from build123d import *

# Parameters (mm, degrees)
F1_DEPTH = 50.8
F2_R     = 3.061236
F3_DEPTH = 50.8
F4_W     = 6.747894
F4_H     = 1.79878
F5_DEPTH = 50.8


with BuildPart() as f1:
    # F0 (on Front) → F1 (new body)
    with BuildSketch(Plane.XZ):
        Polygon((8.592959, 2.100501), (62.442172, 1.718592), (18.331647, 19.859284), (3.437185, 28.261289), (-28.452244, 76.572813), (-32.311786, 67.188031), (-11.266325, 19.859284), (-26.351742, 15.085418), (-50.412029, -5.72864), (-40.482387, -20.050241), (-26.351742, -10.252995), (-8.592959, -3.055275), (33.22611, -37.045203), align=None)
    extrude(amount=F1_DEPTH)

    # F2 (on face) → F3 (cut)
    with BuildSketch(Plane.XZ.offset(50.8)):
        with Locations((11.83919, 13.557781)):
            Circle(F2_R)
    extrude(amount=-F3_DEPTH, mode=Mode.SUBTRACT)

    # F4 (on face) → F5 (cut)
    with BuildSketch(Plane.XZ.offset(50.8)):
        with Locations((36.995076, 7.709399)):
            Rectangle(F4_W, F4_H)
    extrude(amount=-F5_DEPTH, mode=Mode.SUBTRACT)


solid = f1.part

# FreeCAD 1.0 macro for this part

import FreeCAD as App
import Part
import Sketcher
from FreeCAD import Vector
Q = App.Units.Quantity

doc = App.newDocument("Part")
body = doc.addObject("PartDesign::Body", "Body")

# Sketch on XZ plane
sketch1 = doc.addObject("Sketcher::SketchObject", "Sketch")
body.addObject(sketch1)
sketch1.AttachmentSupport = (doc.XZ_Plane, [""])
sketch1.MapMode = "FlatFace"
sketch1.addGeometry(Part.LineSegment(Vector(9, 2, 0), Vector(62, 2, 0)), False)
sketch1.addGeometry(Part.LineSegment(Vector(62, 2, 0), Vector(18, 20, 0)), False)
sketch1.addGeometry(Part.LineSegment(Vector(18, 20, 0), Vector(3, 28, 0)), False)
sketch1.addGeometry(Part.LineSegment(Vector(3, 28, 0), Vector(-28, 77, 0)), False)
sketch1.addGeometry(Part.LineSegment(Vector(-28, 77, 0), Vector(-32, 67, 0)), False)
sketch1.addGeometry(Part.LineSegment(Vector(-32, 67, 0), Vector(-11, 20, 0)), False)
sketch1.addGeometry(Part.LineSegment(Vector(-11, 20, 0), Vector(-26, 15, 0)), False)
sketch1.addGeometry(Part.LineSegment(Vector(-26, 15, 0), Vector(-50, -6, 0)), False)
sketch1.addGeometry(Part.LineSegment(Vector(-50, -6, 0), Vector(-40, -20, 0)), False)
sketch1.addGeometry(Part.LineSegment(Vector(-40, -20, 0), Vector(-26, -10, 0)), False)
sketch1.addGeometry(Part.LineSegment(Vector(-26, -10, 0), Vector(-9, -3, 0)), False)
sketch1.addGeometry(Part.LineSegment(Vector(-9, -3, 0), Vector(33, -37, 0)), False)
sketch1.addGeometry(Part.LineSegment(Vector(33, -37, 0), Vector(9, 2, 0)), False)
sketch1.addConstraint(Sketcher.Constraint("Coincident", 0, 2, 1, 1))
sketch1.addConstraint(Sketcher.Constraint("Coincident", 1, 2, 2, 1))
sketch1.addConstraint(Sketcher.Constraint("Coincident", 2, 2, 3, 1))
sketch1.addConstraint(Sketcher.Constraint("Coincident", 3, 2, 4, 1))
sketch1.addConstraint(Sketcher.Constraint("Coincident", 4, 2, 5, 1))
sketch1.addConstraint(Sketcher.Constraint("Coincident", 5, 2, 6, 1))
sketch1.addConstraint(Sketcher.Constraint("Coincident", 6, 2, 7, 1))
sketch1.addConstraint(Sketcher.Constraint("Coincident", 7, 2, 8, 1))
sketch1.addConstraint(Sketcher.Constraint("Coincident", 8, 2, 9, 1))
sketch1.addConstraint(Sketcher.Constraint("Coincident", 9, 2, 10, 1))
sketch1.addConstraint(Sketcher.Constraint("Coincident", 10, 2, 11, 1))
sketch1.addConstraint(Sketcher.Constraint("Coincident", 11, 2, 12, 1))
sketch1.addConstraint(Sketcher.Constraint("Coincident", 12, 2, 0, 1))
sketch1.addConstraint(Sketcher.Constraint("Perpendicular", 1, 4))
sketch1.addConstraint(Sketcher.Constraint("Perpendicular", 8, 9))
sketch1.addConstraint(Sketcher.Constraint("Horizontal", 1, 2, 5, 2))
sketch1.addConstraint(Sketcher.Constraint("Vertical", 6, 2, 9, 2))
sketch1.addConstraint(Sketcher.Constraint("Distance", 9, 17.1948))
sketch1.addConstraint(Sketcher.Constraint("DistanceY", -1, 1, 12, 2, 2.100501))
sketch1.addConstraint(Sketcher.Constraint("DistanceX", 3, 2, 6, 2, 2.100502))
sketch1.addConstraint(Sketcher.Constraint("DistanceY", 8, 2, 7, 2, 14.321601))
sketch1.addConstraint(Sketcher.Constraint("DistanceX", 9, 2, 12, 2, 34.944701))
sketch1.addConstraint(Sketcher.Constraint("Distance", 2, 17.100839))
sketch1.addConstraint(Sketcher.Constraint("Distance", 7, 31.813872))
sketch1.addConstraint(Sketcher.Constraint("Distance", 10, 19.161982))
sketch1.addConstraint(Sketcher.Constraint("Distance", 12, 46.251252))
sketch1.addConstraint(Sketcher.Constraint("DistanceY", -1, 1, 0, 2, 1.718592))
sketch1.addConstraint(Sketcher.Constraint("DistanceY", -1, 1, 2, 2, 28.261289))
sketch1.addConstraint(Sketcher.Constraint("DistanceY", -1, 1, 4, 2, 67.188031))
sketch1.addConstraint(Sketcher.Constraint("DistanceY", -1, 1, 6, 2, 15.085418))
sketch1.addConstraint(Sketcher.Constraint("DistanceX", 7, 2, -1, 1, 50.412029))
sketch1.addConstraint(Sketcher.Constraint("DistanceY", 7, 2, -1, 1, 5.72864))
sketch1.addConstraint(Sketcher.Constraint("DistanceX", 10, 2, -1, 1, 8.592959))
sketch1.addConstraint(Sketcher.Constraint("DistanceX", -1, 1, 11, 2, 33.22611))
sketch1.addConstraint(Sketcher.Constraint("DistanceY", 0, 2, 1, 2, 18.140692))
sketch1.addConstraint(Sketcher.Constraint("DistanceX", 3, 2, 2, 2, 31.889429))
sketch1.addConstraint(Sketcher.Constraint("DistanceY", 1, 2, 3, 2, 56.713529))
sketch1.addConstraint(Sketcher.Constraint("DistanceX", 4, 2, 3, 2, 3.859542))
sketch1.addConstraint(Sketcher.Constraint("DistanceX", 5, 2, 2, 2, 14.70351))
pad1 = doc.addObject("PartDesign::Pad", "Pad")
body.addObject(pad1)
pad1.Profile = sketch1
pad1.Length = Q("2 in")

# Sketch on XZ plane
sketch2 = doc.addObject("Sketcher::SketchObject", "Sketch001")
body.addObject(sketch2)
sketch2.AttachmentSupport = (doc.XZ_Plane, [""])
sketch2.MapMode = "FlatFace"
sketch2.AttachmentOffset = App.Placement(Vector(0, 0, 2 * 25.4), App.Rotation())
sketch2.addGeometry(Part.Circle(Vector(11.8, 13.6, 0), Vector(0, 0, 1), 3.1), False)
sketch2.addConstraint(Sketcher.Constraint("Diameter", 0, 6.122472))
sketch2.addConstraint(Sketcher.Constraint("DistanceX", -1, 1, 0, 3, 11.83919))
sketch2.addConstraint(Sketcher.Constraint("DistanceY", -1, 1, 0, 3, 13.557781))
pocket1 = doc.addObject("PartDesign::Pocket", "Pocket")
body.addObject(pocket1)
pocket1.Profile = sketch2
pocket1.Length = Q("2 in")

# Sketch on XZ plane
sketch3 = doc.addObject("Sketcher::SketchObject", "Sketch002")
body.addObject(sketch3)
sketch3.AttachmentSupport = (doc.XZ_Plane, [""])
sketch3.MapMode = "FlatFace"
sketch3.AttachmentOffset = App.Placement(Vector(0, 0, 2 * 25.4), App.Rotation())
sketch3.addGeometry(Part.LineSegment(Vector(33.6, 8.6, 0), Vector(33.6, 6.8, 0)), False)
sketch3.addGeometry(Part.LineSegment(Vector(33.6, 6.8, 0), Vector(40.4, 6.8, 0)), False)
sketch3.addGeometry(Part.LineSegment(Vector(40.4, 6.8, 0), Vector(40.4, 8.6, 0)), False)
sketch3.addGeometry(Part.LineSegment(Vector(40.4, 8.6, 0), Vector(33.6, 8.6, 0)), False)
sketch3.addConstraint(Sketcher.Constraint("Coincident", 0, 2, 1, 1))
sketch3.addConstraint(Sketcher.Constraint("Coincident", 1, 2, 2, 1))
sketch3.addConstraint(Sketcher.Constraint("Coincident", 2, 2, 3, 1))
sketch3.addConstraint(Sketcher.Constraint("Coincident", 3, 2, 0, 1))
sketch3.addConstraint(Sketcher.Constraint("Vertical", 0))
sketch3.addConstraint(Sketcher.Constraint("Horizontal", 1))
sketch3.addConstraint(Sketcher.Constraint("Vertical", 2))
sketch3.addConstraint(Sketcher.Constraint("Horizontal", 3))
sketch3.addConstraint(Sketcher.Constraint("DistanceY", 0, 2, 0, 1, 1.79878))
sketch3.addConstraint(Sketcher.Constraint("DistanceX", 1, 1, 1, 2, 6.747894))
sketch3.addConstraint(Sketcher.Constraint("DistanceX", -1, 1, 0, 2, 33.621129))
sketch3.addConstraint(Sketcher.Constraint("DistanceY", -1, 1, 0, 2, 6.810009))
pocket2 = doc.addObject("PartDesign::Pocket", "Pocket001")
body.addObject(pocket2)
pocket2.Profile = sketch3
pocket2.Length = Q("2 in")

doc.recompute()
